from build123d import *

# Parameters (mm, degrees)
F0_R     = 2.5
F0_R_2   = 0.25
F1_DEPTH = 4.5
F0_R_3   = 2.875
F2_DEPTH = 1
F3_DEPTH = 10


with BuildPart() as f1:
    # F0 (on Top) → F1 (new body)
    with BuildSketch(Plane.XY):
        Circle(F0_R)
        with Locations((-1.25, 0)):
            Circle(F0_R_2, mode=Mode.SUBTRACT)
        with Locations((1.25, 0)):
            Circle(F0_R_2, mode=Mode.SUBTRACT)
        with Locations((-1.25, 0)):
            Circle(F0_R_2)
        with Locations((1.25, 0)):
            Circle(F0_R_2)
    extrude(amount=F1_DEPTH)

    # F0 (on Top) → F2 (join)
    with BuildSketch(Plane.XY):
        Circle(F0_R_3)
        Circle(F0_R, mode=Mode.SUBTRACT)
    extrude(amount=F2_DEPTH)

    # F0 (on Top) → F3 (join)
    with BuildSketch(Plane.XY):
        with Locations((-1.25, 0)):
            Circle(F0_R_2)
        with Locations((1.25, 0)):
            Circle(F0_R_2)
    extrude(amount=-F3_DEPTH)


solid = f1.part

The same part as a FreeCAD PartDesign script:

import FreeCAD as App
import Part
import Sketcher

V = App.Vector
Q = App.Units.Quantity

doc = App.newDocument("Part")
body = doc.addObject("PartDesign::Body", "Body")

# Sketch on XY plane
sketch1 = body.newObject("Sketcher::SketchObject", "Sketch")
sketch1.AttachmentSupport = (doc.getObject("XY_Plane"), [""])
sketch1.MapMode = "FlatFace"
sketch1.addGeometry(Part.Circle(V(0, 0, 0), V(0, 0, 1), 2.5), False)
sketch1.addConstraint([
    Sketcher.Constraint("Coincident", 0, 3, -1, 1),
    Sketcher.Constraint("Diameter", 0, Q("5 mm")),
])
pad1 = body.newObject("PartDesign::Pad", "Pad")
pad1.Profile = sketch1
pad1.Length = 4.5

# Sketch on XY plane
sketch2 = body.newObject("Sketcher::SketchObject", "Sketch001")
sketch2.AttachmentSupport = (doc.getObject("XY_Plane"), [""])
sketch2.MapMode = "FlatFace"
sketch2.addGeometry([
    Part.Circle(V(0, 0, 0), V(0, 0, 1), 2.9),
    Part.Circle(V(0, 0, 0), V(0, 0, 1), 2.5),
], False)
sketch2.addConstraint([
    Sketcher.Constraint("Coincident", 0, 3, -1, 1),
    Sketcher.Constraint("Coincident", 1, 3, -1, 1),
    Sketcher.Constraint("Diameter", 1, Q("5 mm")),
    Sketcher.Constraint("Diameter", 0, Q("5.75 mm")),
])
pad2 = body.newObject("PartDesign::Pad", "Pad001")
pad2.Profile = sketch2
pad2.Length = 1

# Sketch on XY plane
sketch3 = body.newObject("Sketcher::SketchObject", "Sketch002")
sketch3.AttachmentSupport = (doc.getObject("XY_Plane"), [""])
sketch3.MapMode = "FlatFace"
sketch3.addGeometry([
    Part.Circle(V(-1.25, 0, 0), V(0, 0, 1), 0.25),
    Part.Circle(V(1.25, 0, 0), V(0, 0, 1), 0.25),
], False)
sketch3.addConstraint([
    Sketcher.Constraint("Equal", 0, 1),
    Sketcher.Constraint("Symmetric", 0, 3, 1, 3, -1, 1),
    Sketcher.Constraint("PointOnObject", 0, 3, -1),
    Sketcher.Constraint("Diameter", 0, Q("0.5 mm")),
    Sketcher.Constraint("DistanceX", 0, 3, 1, 3, Q("2.5 mm")),
])
pad3 = body.newObject("PartDesign::Pad", "Pad002")
pad3.Profile = sketch3
pad3.Length = 10
pad3.Reversed = True

doc.recompute()
